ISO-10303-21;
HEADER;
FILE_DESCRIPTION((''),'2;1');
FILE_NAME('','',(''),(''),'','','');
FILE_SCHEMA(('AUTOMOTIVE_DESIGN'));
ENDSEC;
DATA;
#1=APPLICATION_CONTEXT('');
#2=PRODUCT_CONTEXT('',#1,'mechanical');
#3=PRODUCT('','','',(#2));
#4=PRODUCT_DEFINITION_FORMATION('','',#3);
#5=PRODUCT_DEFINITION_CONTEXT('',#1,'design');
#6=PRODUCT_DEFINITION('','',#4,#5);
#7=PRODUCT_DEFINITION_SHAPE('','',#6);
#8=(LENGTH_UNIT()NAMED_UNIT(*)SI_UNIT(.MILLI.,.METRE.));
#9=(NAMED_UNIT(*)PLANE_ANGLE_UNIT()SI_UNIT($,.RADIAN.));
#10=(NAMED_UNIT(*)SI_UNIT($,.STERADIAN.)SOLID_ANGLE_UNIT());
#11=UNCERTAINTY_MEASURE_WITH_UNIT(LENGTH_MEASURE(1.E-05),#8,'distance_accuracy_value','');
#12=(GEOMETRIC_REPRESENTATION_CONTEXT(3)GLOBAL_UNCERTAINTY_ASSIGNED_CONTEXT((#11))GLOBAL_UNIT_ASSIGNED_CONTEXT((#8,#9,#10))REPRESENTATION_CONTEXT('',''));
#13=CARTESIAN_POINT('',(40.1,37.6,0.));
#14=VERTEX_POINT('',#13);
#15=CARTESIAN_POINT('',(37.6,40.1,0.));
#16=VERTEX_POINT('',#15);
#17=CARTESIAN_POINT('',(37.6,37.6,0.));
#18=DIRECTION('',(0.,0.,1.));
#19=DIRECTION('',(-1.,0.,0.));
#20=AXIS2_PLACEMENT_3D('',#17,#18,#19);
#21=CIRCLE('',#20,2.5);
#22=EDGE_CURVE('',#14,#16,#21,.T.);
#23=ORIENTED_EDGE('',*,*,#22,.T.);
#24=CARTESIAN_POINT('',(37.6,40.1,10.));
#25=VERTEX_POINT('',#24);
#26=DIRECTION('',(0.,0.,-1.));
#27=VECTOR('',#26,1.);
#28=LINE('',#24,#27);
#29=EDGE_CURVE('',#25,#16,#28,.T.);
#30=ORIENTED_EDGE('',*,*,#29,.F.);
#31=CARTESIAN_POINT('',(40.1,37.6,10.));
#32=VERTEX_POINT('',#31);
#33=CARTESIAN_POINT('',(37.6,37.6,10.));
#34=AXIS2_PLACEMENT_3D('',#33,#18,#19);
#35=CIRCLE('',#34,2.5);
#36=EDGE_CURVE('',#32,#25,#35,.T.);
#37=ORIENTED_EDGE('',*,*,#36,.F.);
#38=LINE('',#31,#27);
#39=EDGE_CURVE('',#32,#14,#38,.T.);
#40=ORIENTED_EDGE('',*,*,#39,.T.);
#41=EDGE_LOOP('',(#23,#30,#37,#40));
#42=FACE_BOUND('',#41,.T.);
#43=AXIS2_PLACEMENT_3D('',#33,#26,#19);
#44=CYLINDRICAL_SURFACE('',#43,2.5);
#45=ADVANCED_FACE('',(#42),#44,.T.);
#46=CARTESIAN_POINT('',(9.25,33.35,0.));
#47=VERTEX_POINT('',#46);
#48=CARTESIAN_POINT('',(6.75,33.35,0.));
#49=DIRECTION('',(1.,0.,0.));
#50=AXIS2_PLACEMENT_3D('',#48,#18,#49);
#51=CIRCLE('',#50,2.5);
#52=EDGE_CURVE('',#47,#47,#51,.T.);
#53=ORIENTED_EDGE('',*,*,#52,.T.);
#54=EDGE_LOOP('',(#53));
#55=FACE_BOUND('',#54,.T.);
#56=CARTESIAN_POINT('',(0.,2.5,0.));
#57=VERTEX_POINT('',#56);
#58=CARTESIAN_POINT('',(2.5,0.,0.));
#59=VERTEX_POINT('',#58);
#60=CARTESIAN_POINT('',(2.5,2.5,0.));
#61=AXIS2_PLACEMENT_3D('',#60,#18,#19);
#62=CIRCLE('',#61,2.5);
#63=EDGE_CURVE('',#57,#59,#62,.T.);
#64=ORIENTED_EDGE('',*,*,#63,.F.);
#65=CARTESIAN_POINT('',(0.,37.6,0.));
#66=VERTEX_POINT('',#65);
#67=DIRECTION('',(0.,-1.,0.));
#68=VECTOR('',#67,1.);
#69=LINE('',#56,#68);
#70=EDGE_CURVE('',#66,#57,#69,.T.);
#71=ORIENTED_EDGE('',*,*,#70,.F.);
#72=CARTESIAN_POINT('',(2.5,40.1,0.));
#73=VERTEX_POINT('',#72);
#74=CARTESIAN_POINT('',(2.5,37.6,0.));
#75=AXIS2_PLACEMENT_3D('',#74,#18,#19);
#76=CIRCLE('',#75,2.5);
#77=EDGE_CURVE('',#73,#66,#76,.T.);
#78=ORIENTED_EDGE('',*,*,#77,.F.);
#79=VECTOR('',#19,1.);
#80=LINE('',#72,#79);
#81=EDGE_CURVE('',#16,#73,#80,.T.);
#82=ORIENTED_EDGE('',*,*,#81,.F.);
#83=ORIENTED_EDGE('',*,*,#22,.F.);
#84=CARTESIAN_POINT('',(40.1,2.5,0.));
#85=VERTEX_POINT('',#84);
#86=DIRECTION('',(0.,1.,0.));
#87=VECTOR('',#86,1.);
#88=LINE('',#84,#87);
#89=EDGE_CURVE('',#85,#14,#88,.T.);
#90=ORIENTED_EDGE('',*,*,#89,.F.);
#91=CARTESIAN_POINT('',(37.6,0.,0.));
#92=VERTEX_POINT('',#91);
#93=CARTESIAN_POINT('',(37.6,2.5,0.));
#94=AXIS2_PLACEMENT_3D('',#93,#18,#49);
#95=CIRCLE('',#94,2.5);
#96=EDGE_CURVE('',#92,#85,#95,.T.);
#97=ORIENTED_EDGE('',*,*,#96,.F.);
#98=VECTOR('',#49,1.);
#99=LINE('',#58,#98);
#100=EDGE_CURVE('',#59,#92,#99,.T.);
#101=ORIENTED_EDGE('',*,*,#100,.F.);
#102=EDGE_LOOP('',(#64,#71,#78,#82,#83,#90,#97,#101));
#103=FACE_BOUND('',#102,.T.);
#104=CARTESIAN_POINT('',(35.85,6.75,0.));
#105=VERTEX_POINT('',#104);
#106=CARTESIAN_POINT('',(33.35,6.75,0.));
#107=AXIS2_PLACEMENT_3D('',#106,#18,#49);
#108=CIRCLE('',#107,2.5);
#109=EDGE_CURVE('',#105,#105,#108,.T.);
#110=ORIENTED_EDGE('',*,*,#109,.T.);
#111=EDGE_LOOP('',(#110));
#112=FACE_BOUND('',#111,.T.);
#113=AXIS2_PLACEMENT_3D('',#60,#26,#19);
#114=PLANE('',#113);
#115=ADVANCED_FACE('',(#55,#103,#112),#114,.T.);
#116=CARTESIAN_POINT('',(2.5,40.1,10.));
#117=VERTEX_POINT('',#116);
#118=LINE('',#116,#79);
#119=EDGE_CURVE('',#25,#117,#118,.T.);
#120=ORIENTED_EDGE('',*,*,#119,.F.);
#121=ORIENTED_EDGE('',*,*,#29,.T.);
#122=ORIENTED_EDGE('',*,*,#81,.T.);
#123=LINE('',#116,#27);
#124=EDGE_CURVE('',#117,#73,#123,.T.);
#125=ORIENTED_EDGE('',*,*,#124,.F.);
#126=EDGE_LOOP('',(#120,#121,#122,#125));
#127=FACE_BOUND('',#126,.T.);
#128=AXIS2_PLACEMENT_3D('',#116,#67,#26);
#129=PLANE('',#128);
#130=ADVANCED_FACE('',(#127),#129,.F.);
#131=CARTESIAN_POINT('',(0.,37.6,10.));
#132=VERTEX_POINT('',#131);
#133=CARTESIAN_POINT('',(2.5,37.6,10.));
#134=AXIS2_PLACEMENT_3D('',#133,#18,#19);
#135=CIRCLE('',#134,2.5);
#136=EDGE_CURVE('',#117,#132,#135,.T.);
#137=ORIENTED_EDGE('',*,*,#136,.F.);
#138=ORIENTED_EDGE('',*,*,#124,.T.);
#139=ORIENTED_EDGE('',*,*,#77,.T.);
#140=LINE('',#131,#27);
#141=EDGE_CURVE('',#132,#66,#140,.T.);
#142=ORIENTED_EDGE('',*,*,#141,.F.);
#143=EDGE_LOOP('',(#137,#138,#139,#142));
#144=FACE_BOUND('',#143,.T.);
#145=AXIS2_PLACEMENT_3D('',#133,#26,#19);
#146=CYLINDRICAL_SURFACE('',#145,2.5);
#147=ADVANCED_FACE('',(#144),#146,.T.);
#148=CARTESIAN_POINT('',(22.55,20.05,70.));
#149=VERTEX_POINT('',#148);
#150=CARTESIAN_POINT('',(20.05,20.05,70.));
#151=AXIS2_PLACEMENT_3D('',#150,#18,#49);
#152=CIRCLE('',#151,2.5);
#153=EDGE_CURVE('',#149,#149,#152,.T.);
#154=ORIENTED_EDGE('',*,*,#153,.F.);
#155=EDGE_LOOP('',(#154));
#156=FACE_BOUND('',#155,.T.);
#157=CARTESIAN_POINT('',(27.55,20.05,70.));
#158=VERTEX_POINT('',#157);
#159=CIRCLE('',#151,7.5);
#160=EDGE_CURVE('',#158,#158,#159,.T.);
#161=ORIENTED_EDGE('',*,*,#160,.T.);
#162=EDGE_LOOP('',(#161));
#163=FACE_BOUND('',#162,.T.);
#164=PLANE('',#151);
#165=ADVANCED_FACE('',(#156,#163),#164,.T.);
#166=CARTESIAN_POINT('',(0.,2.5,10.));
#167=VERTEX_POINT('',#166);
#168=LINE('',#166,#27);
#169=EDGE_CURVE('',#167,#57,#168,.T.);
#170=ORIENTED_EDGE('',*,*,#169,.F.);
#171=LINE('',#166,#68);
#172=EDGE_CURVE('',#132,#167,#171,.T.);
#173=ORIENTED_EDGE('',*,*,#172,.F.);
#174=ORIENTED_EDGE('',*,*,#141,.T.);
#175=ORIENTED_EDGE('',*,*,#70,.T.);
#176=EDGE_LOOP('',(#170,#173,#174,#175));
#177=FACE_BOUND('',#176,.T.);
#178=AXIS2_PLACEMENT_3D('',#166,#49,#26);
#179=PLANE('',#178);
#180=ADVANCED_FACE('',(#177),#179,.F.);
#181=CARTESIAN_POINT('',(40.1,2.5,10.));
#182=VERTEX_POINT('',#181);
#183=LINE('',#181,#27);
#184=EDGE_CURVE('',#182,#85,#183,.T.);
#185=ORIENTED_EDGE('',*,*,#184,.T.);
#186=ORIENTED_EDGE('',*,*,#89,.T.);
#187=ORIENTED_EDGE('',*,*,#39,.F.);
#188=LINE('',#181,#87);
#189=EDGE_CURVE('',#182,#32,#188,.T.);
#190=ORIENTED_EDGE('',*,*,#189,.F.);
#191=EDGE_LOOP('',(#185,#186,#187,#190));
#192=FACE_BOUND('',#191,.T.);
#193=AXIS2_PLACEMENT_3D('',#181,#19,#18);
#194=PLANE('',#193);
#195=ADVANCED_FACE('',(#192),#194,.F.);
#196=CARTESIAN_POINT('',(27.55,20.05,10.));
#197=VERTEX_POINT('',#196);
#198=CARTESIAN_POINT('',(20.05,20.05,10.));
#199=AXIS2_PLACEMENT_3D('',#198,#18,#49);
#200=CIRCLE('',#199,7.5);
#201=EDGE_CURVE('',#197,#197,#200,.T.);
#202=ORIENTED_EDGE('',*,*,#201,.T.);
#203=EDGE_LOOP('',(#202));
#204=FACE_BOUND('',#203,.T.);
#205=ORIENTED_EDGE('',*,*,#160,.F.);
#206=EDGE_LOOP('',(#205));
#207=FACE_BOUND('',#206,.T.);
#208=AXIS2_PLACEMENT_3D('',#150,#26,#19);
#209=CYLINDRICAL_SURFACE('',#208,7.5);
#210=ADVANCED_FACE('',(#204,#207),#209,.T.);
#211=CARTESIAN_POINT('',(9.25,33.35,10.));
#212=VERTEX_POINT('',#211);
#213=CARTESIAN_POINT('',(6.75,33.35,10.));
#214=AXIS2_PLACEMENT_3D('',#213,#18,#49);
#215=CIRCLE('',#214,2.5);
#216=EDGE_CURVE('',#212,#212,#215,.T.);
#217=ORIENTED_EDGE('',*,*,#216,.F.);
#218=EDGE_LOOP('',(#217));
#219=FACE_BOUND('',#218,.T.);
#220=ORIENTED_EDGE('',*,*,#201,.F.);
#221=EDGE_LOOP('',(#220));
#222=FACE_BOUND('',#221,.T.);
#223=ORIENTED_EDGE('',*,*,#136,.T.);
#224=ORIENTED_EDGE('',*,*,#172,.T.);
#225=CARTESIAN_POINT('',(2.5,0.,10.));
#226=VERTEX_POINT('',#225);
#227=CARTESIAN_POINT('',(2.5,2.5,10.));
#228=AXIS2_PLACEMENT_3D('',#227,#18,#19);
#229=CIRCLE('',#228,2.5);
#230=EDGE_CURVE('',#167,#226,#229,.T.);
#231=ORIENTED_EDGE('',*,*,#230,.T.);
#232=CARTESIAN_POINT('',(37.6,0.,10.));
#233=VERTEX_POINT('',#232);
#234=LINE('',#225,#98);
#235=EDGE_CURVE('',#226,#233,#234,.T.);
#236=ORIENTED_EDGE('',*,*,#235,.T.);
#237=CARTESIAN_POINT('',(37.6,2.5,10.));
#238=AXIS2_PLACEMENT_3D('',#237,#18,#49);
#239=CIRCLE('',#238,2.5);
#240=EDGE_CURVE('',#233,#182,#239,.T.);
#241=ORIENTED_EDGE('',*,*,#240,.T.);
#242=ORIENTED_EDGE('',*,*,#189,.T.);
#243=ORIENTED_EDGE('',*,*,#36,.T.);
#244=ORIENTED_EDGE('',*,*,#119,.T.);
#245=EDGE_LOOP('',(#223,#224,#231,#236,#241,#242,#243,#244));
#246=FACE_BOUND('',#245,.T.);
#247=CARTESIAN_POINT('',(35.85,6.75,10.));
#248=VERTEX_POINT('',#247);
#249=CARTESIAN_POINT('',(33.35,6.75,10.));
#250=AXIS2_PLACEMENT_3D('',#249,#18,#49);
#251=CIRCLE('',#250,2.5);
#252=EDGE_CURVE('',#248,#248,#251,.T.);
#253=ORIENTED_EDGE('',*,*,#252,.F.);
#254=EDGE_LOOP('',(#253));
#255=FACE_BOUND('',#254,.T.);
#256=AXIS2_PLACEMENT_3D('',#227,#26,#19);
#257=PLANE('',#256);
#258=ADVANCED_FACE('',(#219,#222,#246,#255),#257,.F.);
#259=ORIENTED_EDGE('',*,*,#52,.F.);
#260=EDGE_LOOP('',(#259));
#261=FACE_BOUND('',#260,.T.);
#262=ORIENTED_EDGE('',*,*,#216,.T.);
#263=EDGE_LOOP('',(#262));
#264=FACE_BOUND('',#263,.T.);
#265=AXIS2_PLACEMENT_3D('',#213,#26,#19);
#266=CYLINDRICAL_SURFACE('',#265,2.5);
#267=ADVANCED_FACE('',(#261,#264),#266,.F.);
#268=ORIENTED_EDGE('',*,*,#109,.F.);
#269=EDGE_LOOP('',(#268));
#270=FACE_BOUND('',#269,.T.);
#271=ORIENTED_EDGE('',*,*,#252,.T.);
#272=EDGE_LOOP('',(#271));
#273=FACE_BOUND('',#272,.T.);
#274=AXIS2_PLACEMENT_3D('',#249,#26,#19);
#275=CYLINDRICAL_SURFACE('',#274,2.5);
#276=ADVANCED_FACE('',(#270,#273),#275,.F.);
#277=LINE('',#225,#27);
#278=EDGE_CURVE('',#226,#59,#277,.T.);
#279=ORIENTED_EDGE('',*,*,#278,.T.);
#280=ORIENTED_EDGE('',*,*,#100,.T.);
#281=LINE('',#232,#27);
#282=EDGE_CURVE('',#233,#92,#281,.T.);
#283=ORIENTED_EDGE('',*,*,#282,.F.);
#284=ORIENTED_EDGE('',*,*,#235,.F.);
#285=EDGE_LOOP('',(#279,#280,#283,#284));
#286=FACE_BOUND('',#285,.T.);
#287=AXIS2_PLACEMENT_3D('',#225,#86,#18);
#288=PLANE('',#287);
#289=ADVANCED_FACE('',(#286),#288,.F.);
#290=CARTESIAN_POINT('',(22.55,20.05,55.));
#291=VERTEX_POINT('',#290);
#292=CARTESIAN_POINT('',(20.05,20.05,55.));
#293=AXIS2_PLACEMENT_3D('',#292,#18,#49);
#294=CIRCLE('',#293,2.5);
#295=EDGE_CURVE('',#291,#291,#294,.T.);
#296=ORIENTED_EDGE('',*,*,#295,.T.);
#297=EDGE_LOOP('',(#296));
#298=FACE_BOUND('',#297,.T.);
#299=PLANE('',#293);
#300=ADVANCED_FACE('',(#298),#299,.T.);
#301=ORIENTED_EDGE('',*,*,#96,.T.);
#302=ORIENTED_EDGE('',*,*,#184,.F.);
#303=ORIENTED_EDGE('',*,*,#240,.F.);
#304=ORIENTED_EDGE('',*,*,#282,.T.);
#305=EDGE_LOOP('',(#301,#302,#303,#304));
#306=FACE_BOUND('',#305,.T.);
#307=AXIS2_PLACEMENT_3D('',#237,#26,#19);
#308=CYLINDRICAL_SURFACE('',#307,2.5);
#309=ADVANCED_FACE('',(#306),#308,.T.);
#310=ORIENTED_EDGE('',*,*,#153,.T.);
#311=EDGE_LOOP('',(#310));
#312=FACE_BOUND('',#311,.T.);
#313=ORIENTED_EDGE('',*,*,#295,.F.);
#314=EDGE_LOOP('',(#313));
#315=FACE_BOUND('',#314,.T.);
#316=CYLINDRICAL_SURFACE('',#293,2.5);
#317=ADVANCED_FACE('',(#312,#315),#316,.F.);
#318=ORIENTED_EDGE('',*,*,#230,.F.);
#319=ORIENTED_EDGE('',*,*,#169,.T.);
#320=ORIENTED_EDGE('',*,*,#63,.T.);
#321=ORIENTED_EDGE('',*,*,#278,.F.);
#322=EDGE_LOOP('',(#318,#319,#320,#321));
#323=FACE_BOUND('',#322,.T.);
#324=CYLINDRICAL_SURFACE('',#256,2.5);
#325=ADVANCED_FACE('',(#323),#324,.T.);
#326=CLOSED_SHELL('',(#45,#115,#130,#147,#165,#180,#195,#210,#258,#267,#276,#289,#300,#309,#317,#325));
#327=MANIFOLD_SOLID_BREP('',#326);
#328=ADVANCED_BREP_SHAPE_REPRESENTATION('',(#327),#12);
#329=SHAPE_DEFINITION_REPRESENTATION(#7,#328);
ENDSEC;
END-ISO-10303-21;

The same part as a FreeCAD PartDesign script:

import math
import FreeCAD as App
import Part
import Sketcher
Q = App.Units.Quantity

doc = App.newDocument("Part")
body = doc.addObject("PartDesign::Body", "Body")

# Sketch on XY plane
sketch1 = body.newObject("Sketcher::SketchObject", "Sketch")
sketch1.AttachmentSupport = (doc.getObject("XY_Plane"), [""])
sketch1.MapMode = "FlatFace"
sketch1.addGeometry(Part.LineSegment(App.Vector(2.5, 0, 0), App.Vector(37.6, 0, 0)), False)
sketch1.addGeometry(Part.ArcOfCircle(Part.Circle(App.Vector(37.6, 2.5, 0), App.Vector(0, 0, 1), 2.5), math.radians(-90), math.radians(0)), False)
sketch1.addGeometry(Part.LineSegment(App.Vector(40.1, 2.5, 0), App.Vector(40.1, 37.6, 0)), False)
sketch1.addGeometry(Part.ArcOfCircle(Part.Circle(App.Vector(37.6, 37.6, 0), App.Vector(0, 0, 1), 2.5), math.radians(0), math.radians(90)), False)
sketch1.addGeometry(Part.LineSegment(App.Vector(37.6, 40.1, 0), App.Vector(2.5, 40.1, 0)), False)
sketch1.addGeometry(Part.ArcOfCircle(Part.Circle(App.Vector(2.5, 37.6, 0), App.Vector(0, 0, 1), 2.5), math.radians(90), math.radians(180)), False)
sketch1.addGeometry(Part.LineSegment(App.Vector(0, 37.6, 0), App.Vector(0, 2.5, 0)), False)
sketch1.addGeometry(Part.ArcOfCircle(Part.Circle(App.Vector(2.5, 2.5, 0), App.Vector(0, 0, 1), 2.5), math.radians(180), math.radians(270)), False)
sketch1.addGeometry(Part.Circle(App.Vector(33.4, 6.8, 0), App.Vector(0, 0, 1), 2.5), False)
sketch1.addGeometry(Part.Circle(App.Vector(6.8, 33.4, 0), App.Vector(0, 0, 1), 2.5), False)
sketch1.addConstraint(Sketcher.Constraint("Tangent", 0, 2, 1, 1))
sketch1.addConstraint(Sketcher.Constraint("Tangent", 1, 2, 2, 1))
sketch1.addConstraint(Sketcher.Constraint("Tangent", 2, 2, 3, 1))
sketch1.addConstraint(Sketcher.Constraint("Tangent", 3, 2, 4, 1))
sketch1.addConstraint(Sketcher.Constraint("Tangent", 4, 2, 5, 1))
sketch1.addConstraint(Sketcher.Constraint("Tangent", 5, 2, 6, 1))
sketch1.addConstraint(Sketcher.Constraint("Tangent", 6, 2, 7, 1))
sketch1.addConstraint(Sketcher.Constraint("Tangent", 7, 2, 0, 1))
sketch1.addConstraint(Sketcher.Constraint("Horizontal", 0))
sketch1.addConstraint(Sketcher.Constraint("Vertical", 2))
sketch1.addConstraint(Sketcher.Constraint("Horizontal", 4))
sketch1.addConstraint(Sketcher.Constraint("Vertical", 6))
sketch1.addConstraint(Sketcher.Constraint("Equal", 1, 3))
sketch1.addConstraint(Sketcher.Constraint("Equal", 3, 5))
sketch1.addConstraint(Sketcher.Constraint("Equal", 5, 7))
sketch1.addConstraint(Sketcher.Constraint("Equal", 7, 8))
sketch1.addConstraint(Sketcher.Constraint("Equal", 8, 9))
sketch1.addConstraint(Sketcher.Constraint("PointOnObject", 0, 2, -1))
sketch1.addConstraint(Sketcher.Constraint("PointOnObject", 5, 2, -2))
sketch1.addConstraint(Sketcher.Constraint("Equal", 4, 2))
sketch1.addConstraint(Sketcher.Constraint("Diameter", 8, Q("5 mm")))
sketch1.addConstraint(Sketcher.Constraint("DistanceX", 0, 1, 0, 2, Q("35.1 mm")))
sketch1.addConstraint(Sketcher.Constraint("DistanceX", 9, 3, 8, 3, Q("26.6 mm")))
sketch1.addConstraint(Sketcher.Constraint("DistanceY", 8, 3, 9, 3, Q("26.6 mm")))
sketch1.addConstraint(Sketcher.Constraint("DistanceX", -1, 1, 8, 3, Q("33.35 mm")))
sketch1.addConstraint(Sketcher.Constraint("DistanceY", -1, 1, 8, 3, Q("6.75 mm")))
pad1 = body.newObject("PartDesign::Pad", "Pad")
pad1.Profile = sketch1
pad1.Length = 10

# Sketch on XY plane
sketch2 = body.newObject("Sketcher::SketchObject", "Sketch001")
sketch2.AttachmentSupport = (doc.getObject("XY_Plane"), [""])
sketch2.MapMode = "FlatFace"
sketch2.AttachmentOffset = App.Placement(App.Vector(0, 0, 10), App.Rotation())
sketch2.addGeometry(Part.Circle(App.Vector(20, 20, 0), App.Vector(0, 0, 1), 8), False)
sketch2.addConstraint(Sketcher.Constraint("Diameter", 0, Q("15 mm")))
sketch2.addConstraint(Sketcher.Constraint("DistanceX", -1, 1, 0, 3, Q("20.05 mm")))
sketch2.addConstraint(Sketcher.Constraint("DistanceY", -1, 1, 0, 3, Q("20.05 mm")))
pad2 = body.newObject("PartDesign::Pad", "Pad001")
pad2.Profile = sketch2
pad2.Length = 60

# Sketch on XY plane
sketch3 = body.newObject("Sketcher::SketchObject", "Sketch002")
sketch3.AttachmentSupport = (doc.getObject("XY_Plane"), [""])
sketch3.MapMode = "FlatFace"
sketch3.AttachmentOffset = App.Placement(App.Vector(0, 0, 70), App.Rotation())
sketch3.addGeometry(Part.Circle(App.Vector(20.1, 20.1, 0), App.Vector(0, 0, 1), 2.5), False)
sketch3.addConstraint(Sketcher.Constraint("Diameter", 0, Q("5 mm")))
sketch3.addConstraint(Sketcher.Constraint("DistanceX", -1, 1, 0, 3, Q("20.05 mm")))
sketch3.addConstraint(Sketcher.Constraint("DistanceY", -1, 1, 0, 3, Q("20.05 mm")))
pocket1 = body.newObject("PartDesign::Pocket", "Pocket")
pocket1.Profile = sketch3
pocket1.Length = 15

doc.recompute()
